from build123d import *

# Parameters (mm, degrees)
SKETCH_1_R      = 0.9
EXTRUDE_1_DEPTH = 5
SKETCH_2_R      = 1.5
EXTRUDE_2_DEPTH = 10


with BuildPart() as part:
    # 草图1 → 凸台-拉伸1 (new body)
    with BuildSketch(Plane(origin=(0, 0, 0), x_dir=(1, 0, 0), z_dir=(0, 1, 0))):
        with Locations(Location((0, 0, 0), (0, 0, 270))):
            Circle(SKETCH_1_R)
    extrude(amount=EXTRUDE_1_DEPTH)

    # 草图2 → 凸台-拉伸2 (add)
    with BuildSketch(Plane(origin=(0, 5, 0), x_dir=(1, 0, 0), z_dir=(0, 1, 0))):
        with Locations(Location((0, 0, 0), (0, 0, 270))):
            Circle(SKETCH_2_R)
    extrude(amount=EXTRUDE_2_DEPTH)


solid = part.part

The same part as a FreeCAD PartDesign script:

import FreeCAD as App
import Part
import Sketcher

doc = App.newDocument("Part")
body = doc.addObject("PartDesign::Body", "Body")

sketch1 = body.newObject("Sketcher::SketchObject", "Sketch")
sketch1.AttachmentSupport = (doc.getObject("XZ_Plane"), [""])
sketch1.MapMode = "FlatFace"
sketch1.addGeometry(Part.Circle(App.Vector(0, 0, 0), App.Vector(0, 0, 1), 0.9), False)
sketch1.addConstraint(Sketcher.Constraint("Coincident", 0, 3, -1, 1))
sketch1.addConstraint(Sketcher.Constraint("Diameter", 0, 1.8))
pad1 = body.newObject("PartDesign::Pad", "Pad")
pad1.Profile = sketch1
pad1.Length = 5
pad1.Reversed = True

sketch2 = body.newObject("Sketcher::SketchObject", "Sketch001")
sketch2.AttachmentSupport = (doc.getObject("XZ_Plane"), [""])
sketch2.MapMode = "FlatFace"
sketch2.AttachmentOffset = App.Placement(App.Vector(0, 0, -5), App.Rotation())
sketch2.addGeometry(Part.Circle(App.Vector(0, 0, 0), App.Vector(0, 0, 1), 1.5), False)
sketch2.addConstraint(Sketcher.Constraint("Coincident", 0, 3, -1, 1))
sketch2.addConstraint(Sketcher.Constraint("Diameter", 0, 3.0))
pad2 = body.newObject("PartDesign::Pad", "Pad001")
pad2.Profile = sketch2
pad2.Length = 10
pad2.Reversed = True

doc.recompute()
